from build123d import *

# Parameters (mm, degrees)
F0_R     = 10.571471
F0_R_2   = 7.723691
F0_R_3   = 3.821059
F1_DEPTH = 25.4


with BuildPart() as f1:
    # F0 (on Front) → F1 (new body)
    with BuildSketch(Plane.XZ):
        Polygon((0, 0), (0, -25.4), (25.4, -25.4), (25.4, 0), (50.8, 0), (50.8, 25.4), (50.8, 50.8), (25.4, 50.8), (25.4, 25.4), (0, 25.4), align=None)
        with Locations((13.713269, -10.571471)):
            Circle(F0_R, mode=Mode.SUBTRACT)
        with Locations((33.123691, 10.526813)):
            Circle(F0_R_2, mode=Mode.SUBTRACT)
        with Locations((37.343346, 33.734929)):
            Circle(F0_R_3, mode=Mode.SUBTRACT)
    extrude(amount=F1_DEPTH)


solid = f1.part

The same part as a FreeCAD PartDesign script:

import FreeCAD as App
import Part
import Sketcher

V = App.Vector
Q = App.Units.Quantity

doc = App.newDocument("Part")
body = doc.addObject("PartDesign::Body", "Body")

# Sketch on XZ plane
sketch1 = body.newObject("Sketcher::SketchObject", "Sketch")
sketch1.AttachmentSupport = (doc.getObject("XZ_Plane"), [""])
sketch1.MapMode = "FlatFace"
sketch1.addGeometry([
    Part.LineSegment(V(0, -25.4, 0), V(25.4, -25.4, 0)),  # 0
    Part.LineSegment(V(25.4, -25.4, 0), V(25.4, 0, 0)),  # 1
    Part.LineSegment(V(25.4, 0, 0), V(50.8, 0, 0)),  # 2
    Part.LineSegment(V(50.8, 0, 0), V(50.8, 50.8, 0)),  # 3
    Part.LineSegment(V(50.8, 50.8, 0), V(25.4, 50.8, 0)),  # 4
    Part.LineSegment(V(25.4, 50.8, 0), V(25.4, 25.4, 0)),  # 5
    Part.LineSegment(V(25.4, 25.4, 0), V(0, 25.4, 0)),  # 6
    Part.LineSegment(V(0, 25.4, 0), V(0, -25.4, 0)),  # 7
    Part.Circle(V(13.7, -10.6, 0), V(0, 0, 1), 10.6),  # 8
    Part.Circle(V(33.1, 10.5, 0), V(0, 0, 1), 7.7),  # 9
    Part.Circle(V(37.3, 33.7, 0), V(0, 0, 1), 3.8),  # 10
], False)
sketch1.addConstraint([
    Sketcher.Constraint("Coincident", 0, 2, 1, 1),
    Sketcher.Constraint("Coincident", 1, 2, 2, 1),
    Sketcher.Constraint("Coincident", 2, 2, 3, 1),
    Sketcher.Constraint("Coincident", 3, 2, 4, 1),
    Sketcher.Constraint("Coincident", 4, 2, 5, 1),
    Sketcher.Constraint("Coincident", 5, 2, 6, 1),
    Sketcher.Constraint("Coincident", 6, 2, 7, 1),
    Sketcher.Constraint("Coincident", 7, 2, 0, 1),
    Sketcher.Constraint("Horizontal", 0),
    Sketcher.Constraint("Vertical", 1),
    Sketcher.Constraint("Horizontal", 2),
    Sketcher.Constraint("Vertical", 3),
    Sketcher.Constraint("Horizontal", 4),
    Sketcher.Constraint("Vertical", 5),
    Sketcher.Constraint("Horizontal", 6),
    Sketcher.Constraint("Vertical", 7),
    Sketcher.Constraint("Symmetric", 6, 2, 7, 2, -1, 1),
    Sketcher.Constraint("PointOnObject", 1, 2, -1),
    Sketcher.Constraint("Vertical", 1, 2, 4, 2),
    Sketcher.Constraint("Equal", 0, 2),
    Sketcher.Constraint("Equal", 6, 1),
    Sketcher.Constraint("Equal", 1, 5),
    Sketcher.Constraint("DistanceX", 0, 1, 0, 2, Q("1 in")),
    Sketcher.Constraint("Diameter", 9, 15.447382),
    Sketcher.Constraint("Diameter", 8, 21.142942),
    Sketcher.Constraint("Diameter", 10, 7.642118),
    Sketcher.Constraint("DistanceY", 8, 3, 10, 3, 44.3064),
    Sketcher.Constraint("DistanceX", -1, 1, 8, 3, 13.713269),
    Sketcher.Constraint("DistanceY", 8, 3, -1, 1, 10.571471),
    Sketcher.Constraint("DistanceX", -1, 1, 9, 3, 33.123691),
    Sketcher.Constraint("DistanceY", -1, 1, 9, 3, 10.526813),
    Sketcher.Constraint("DistanceX", -1, 1, 10, 3, 37.343346),
])
pad1 = body.newObject("PartDesign::Pad", "Pad")
pad1.Profile = sketch1
pad1.Length = Q("1 in")

doc.recompute()
